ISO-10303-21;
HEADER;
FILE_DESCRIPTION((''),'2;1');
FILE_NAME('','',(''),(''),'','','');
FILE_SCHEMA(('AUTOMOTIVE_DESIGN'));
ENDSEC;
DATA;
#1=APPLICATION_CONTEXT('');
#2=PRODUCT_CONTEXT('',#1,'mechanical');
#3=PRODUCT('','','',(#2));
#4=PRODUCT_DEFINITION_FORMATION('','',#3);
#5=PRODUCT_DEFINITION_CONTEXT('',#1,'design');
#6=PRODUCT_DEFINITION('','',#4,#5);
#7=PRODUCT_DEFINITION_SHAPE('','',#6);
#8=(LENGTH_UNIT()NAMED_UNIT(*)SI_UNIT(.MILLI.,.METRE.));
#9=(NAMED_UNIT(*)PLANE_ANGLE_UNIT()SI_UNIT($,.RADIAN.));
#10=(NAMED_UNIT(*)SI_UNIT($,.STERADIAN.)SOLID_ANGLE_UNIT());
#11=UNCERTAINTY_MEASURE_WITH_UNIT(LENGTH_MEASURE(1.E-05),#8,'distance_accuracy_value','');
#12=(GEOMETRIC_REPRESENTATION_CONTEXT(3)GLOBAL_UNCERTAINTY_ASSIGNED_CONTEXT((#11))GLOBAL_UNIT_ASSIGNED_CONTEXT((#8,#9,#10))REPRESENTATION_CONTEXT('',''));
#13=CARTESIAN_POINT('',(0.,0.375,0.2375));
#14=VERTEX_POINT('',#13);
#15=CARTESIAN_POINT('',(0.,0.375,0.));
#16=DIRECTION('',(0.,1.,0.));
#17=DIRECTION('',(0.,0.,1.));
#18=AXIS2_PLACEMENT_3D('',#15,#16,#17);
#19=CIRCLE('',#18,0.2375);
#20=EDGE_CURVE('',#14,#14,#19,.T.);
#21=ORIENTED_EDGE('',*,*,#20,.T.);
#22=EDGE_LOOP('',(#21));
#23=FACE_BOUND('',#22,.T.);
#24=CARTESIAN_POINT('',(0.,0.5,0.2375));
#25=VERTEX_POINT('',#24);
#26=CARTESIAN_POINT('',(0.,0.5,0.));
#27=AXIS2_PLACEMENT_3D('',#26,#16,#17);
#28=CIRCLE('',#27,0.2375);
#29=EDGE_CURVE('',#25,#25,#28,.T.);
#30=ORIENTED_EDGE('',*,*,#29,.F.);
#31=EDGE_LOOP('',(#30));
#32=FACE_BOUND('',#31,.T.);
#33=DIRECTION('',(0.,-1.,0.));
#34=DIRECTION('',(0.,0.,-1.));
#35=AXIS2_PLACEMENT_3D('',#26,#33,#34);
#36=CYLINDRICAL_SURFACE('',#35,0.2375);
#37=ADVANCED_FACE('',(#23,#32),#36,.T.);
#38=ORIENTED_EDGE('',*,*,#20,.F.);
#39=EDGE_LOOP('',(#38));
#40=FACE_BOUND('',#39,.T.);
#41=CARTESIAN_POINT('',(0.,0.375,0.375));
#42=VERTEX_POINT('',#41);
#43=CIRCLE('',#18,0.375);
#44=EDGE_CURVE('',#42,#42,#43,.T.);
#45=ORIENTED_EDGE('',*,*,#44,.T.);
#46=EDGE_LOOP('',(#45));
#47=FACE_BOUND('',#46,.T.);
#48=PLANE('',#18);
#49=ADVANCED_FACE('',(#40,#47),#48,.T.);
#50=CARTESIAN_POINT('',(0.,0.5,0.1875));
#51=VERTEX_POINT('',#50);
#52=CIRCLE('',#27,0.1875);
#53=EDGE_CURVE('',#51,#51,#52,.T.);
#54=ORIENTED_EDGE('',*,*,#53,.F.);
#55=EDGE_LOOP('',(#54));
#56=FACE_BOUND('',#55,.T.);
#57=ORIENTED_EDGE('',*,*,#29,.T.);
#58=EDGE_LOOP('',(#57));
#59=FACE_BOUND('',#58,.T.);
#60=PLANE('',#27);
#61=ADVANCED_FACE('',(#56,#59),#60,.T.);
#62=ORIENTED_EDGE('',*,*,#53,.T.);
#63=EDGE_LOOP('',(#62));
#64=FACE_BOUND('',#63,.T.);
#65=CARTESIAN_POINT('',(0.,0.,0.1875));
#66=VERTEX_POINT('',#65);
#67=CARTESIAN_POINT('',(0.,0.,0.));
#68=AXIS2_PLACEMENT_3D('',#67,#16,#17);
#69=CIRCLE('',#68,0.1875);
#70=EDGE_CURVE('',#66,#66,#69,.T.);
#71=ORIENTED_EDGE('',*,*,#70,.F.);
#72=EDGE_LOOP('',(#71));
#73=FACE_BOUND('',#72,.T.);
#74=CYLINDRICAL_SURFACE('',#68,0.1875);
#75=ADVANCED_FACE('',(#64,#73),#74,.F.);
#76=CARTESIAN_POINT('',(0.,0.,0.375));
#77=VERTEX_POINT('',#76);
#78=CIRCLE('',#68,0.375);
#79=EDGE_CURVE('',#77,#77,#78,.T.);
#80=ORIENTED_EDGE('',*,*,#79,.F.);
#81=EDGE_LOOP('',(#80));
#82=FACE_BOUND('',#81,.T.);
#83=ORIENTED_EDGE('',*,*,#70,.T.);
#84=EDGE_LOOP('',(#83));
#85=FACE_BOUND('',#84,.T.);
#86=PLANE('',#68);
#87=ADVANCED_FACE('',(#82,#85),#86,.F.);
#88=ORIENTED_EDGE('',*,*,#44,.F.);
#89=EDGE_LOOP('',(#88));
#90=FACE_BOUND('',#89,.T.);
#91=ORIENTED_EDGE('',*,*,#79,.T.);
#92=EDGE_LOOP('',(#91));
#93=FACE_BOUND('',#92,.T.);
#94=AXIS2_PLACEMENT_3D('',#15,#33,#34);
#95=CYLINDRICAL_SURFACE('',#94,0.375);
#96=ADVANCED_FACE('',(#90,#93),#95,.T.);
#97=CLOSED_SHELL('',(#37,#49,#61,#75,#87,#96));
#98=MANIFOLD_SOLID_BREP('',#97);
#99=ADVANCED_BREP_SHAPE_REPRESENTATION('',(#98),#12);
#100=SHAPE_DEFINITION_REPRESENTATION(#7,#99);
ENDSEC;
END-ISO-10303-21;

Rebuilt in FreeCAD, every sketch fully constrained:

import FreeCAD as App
import Part
import Sketcher

V = App.Vector

doc = App.newDocument("Part")
params = doc.addObject("Spreadsheet::Sheet", "Params")
for row, (alias, value) in enumerate([
    ("sketch1_diameter", "0.75 mm"),
    ("pad1_length", "0.375 mm"),
    ("pocket1_length", "0.375 mm"),
    ("pad2_length", "0.125 mm"),
    ("pocket2_length", "0.125 mm"),
], start=1):
    params.set(f"A{row}", alias)
    params.set(f"B{row}", "=" + value)
    params.setAlias(f"B{row}", alias)

body = doc.addObject("PartDesign::Body", "Body")

# Sketch on XZ plane
sketch1 = doc.addObject("Sketcher::SketchObject", "Sketch")
body.addObject(sketch1)
sketch1.AttachmentSupport = (doc.XZ_Plane, [""])
sketch1.MapMode = "FlatFace"
sketch1.addGeometry(Part.Circle(V(0, 0, 0), V(0, 0, 1), 0.375), False)
sketch1.addConstraint(Sketcher.Constraint("Coincident", 0, 3, -1, 1))
sketch1.addConstraint(Sketcher.Constraint("Diameter", 0, 0.75))
sketch1.setExpression("Constraints[1]", "Params.sketch1_diameter")
pad1 = doc.addObject("PartDesign::Pad", "Pad")
body.addObject(pad1)
pad1.Profile = sketch1
pad1.setExpression("Length", "Params.pad1_length")
pad1.Reversed = True

# Sketch on XZ plane
sketch2 = doc.addObject("Sketcher::SketchObject", "Sketch001")
body.addObject(sketch2)
sketch2.AttachmentSupport = (doc.XZ_Plane, [""])
sketch2.MapMode = "FlatFace"
sketch2.AttachmentOffset = App.Placement(V(0, 0, -0.375), App.Rotation())
sketch2.addGeometry(Part.Circle(V(0, 0, 0), V(0, 0, 1), 0.1875), False)
sketch2.addConstraint(Sketcher.Constraint("Coincident", 0, 3, -1, 1))
sketch2.addConstraint(Sketcher.Constraint("Diameter", 0, 0.375))
pocket1 = doc.addObject("PartDesign::Pocket", "Pocket")
body.addObject(pocket1)
pocket1.Profile = sketch2
pocket1.setExpression("Length", "Params.pocket1_length")
pocket1.Reversed = True

# Sketch on XZ plane
sketch3 = doc.addObject("Sketcher::SketchObject", "Sketch002")
body.addObject(sketch3)
sketch3.AttachmentSupport = (doc.XZ_Plane, [""])
sketch3.MapMode = "FlatFace"
sketch3.AttachmentOffset = App.Placement(V(0, 0, -0.375), App.Rotation())
sketch3.addGeometry(Part.Circle(V(0, 0, 0), V(0, 0, 1), 0.2375), False)
sketch3.addConstraint(Sketcher.Constraint("Coincident", 0, 3, -1, 1))
sketch3.addConstraint(Sketcher.Constraint("Diameter", 0, 0.475))
pad2 = doc.addObject("PartDesign::Pad", "Pad001")
body.addObject(pad2)
pad2.Profile = sketch3
pad2.setExpression("Length", "Params.pad2_length")
pad2.Reversed = True

# Sketch on XZ plane
sketch4 = doc.addObject("Sketcher::SketchObject", "Sketch003")
body.addObject(sketch4)
sketch4.AttachmentSupport = (doc.XZ_Plane, [""])
sketch4.MapMode = "FlatFace"
sketch4.AttachmentOffset = App.Placement(V(0, 0, -0.5), App.Rotation())
sketch4.addGeometry(Part.Circle(V(0, 0, 0), V(0, 0, 1), 0.1875), False)
sketch4.addConstraint(Sketcher.Constraint("Coincident", 0, 3, -1, 1))
sketch4.addConstraint(Sketcher.Constraint("Diameter", 0, 0.375))
pocket2 = doc.addObject("PartDesign::Pocket", "Pocket001")
body.addObject(pocket2)
pocket2.Profile = sketch4
pocket2.setExpression("Length", "Params.pocket2_length")
pocket2.Reversed = True

doc.recompute()
